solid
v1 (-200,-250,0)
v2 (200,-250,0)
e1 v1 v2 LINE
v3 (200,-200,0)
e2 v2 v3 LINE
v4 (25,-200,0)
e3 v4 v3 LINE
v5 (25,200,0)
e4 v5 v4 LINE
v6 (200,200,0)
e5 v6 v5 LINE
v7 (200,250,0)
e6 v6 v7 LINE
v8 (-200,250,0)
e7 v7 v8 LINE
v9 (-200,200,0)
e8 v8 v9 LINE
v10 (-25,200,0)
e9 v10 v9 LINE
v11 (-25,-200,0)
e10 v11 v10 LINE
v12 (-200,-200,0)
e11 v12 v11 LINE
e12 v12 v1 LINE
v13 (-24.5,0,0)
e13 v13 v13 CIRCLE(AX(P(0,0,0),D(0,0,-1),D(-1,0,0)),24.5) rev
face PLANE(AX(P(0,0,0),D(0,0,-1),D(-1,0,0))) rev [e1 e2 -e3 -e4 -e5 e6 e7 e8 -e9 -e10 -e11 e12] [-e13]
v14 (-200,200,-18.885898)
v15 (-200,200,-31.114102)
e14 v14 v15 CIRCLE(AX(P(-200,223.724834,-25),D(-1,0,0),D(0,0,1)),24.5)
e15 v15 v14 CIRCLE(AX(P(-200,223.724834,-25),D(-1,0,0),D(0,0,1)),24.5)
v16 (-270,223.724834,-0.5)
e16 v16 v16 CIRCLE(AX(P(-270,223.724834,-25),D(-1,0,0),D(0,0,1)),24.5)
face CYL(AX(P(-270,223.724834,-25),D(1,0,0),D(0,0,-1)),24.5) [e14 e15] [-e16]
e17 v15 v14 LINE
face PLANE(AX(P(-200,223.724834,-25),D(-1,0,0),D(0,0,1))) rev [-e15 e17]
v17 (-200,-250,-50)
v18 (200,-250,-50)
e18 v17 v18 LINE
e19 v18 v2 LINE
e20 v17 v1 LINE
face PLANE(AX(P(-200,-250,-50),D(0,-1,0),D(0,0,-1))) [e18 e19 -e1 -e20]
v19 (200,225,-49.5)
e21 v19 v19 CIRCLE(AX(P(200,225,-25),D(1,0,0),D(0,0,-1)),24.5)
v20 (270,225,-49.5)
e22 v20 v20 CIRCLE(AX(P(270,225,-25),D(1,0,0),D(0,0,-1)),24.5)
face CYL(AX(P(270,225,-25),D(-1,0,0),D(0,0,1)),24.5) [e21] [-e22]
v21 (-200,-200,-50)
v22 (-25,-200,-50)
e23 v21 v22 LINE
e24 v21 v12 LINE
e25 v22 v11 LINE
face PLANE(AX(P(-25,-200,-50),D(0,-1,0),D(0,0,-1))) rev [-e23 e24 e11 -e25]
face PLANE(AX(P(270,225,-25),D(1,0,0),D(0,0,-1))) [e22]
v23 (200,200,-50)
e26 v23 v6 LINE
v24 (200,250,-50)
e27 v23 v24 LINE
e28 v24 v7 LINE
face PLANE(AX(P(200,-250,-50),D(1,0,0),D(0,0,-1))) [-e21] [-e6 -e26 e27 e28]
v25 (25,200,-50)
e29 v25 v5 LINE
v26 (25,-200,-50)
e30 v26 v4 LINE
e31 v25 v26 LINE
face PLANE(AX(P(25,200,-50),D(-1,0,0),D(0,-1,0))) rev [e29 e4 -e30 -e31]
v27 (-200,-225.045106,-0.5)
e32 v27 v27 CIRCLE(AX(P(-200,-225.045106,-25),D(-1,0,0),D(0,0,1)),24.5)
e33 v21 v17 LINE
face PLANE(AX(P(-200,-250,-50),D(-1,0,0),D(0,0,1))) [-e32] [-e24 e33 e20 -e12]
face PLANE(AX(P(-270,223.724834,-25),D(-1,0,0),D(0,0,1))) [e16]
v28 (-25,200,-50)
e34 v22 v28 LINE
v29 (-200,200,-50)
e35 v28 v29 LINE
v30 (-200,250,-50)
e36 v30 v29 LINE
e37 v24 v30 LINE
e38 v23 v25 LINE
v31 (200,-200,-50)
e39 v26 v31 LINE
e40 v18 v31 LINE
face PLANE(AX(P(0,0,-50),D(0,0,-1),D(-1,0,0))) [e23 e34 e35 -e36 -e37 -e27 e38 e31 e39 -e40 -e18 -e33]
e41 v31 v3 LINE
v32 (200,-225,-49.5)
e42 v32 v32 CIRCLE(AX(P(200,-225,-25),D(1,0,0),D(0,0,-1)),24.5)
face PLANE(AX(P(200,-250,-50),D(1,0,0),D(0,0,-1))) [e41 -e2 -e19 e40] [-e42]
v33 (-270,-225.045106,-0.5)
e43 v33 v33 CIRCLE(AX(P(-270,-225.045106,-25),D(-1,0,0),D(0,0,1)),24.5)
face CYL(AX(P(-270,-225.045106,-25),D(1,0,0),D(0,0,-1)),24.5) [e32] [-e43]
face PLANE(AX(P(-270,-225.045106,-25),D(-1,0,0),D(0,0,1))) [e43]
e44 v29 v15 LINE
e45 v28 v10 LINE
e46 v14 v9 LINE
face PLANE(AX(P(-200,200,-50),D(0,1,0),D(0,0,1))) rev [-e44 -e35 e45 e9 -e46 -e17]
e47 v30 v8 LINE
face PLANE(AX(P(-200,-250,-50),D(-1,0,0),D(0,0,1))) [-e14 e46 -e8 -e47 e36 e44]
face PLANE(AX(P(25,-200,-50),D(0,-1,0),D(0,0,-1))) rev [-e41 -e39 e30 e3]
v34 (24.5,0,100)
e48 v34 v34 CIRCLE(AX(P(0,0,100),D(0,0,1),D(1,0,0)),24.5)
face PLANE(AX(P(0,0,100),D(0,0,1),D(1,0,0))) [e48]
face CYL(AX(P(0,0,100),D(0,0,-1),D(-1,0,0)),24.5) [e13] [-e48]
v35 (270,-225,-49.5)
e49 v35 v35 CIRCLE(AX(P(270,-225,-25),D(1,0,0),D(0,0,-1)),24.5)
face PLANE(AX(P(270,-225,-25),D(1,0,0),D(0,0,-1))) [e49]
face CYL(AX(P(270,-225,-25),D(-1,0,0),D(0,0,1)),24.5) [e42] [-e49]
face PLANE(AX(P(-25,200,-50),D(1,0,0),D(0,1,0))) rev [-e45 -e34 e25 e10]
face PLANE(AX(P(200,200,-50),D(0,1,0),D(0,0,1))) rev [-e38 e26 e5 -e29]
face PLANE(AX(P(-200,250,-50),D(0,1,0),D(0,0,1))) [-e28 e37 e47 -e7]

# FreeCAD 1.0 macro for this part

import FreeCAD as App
import Part
import Sketcher
from FreeCAD import Vector
Q = App.Units.Quantity


def add_polygon(sketch, points):
    """Adds a closed chain of lines whose ends are joined by coincident constraints."""
    first, n = sketch.GeometryCount, len(points)
    for a, b in zip(points, points[1:] + points[:1]):
        sketch.addGeometry(Part.LineSegment(App.Vector(*a, 0), App.Vector(*b, 0)), False)
    for i in range(n):
        sketch.addConstraint(Sketcher.Constraint("Coincident", first + i, 2, first + (i + 1) % n, 1))

doc = App.newDocument("Part")
body = doc.addObject("PartDesign::Body", "Body")

sketch1 = doc.addObject("Sketcher::SketchObject", "Sketch")
body.addObject(sketch1)
sketch1.AttachmentSupport = (doc.XY_Plane, [""])
sketch1.MapMode = "FlatFace"
add_polygon(sketch1, [(-200, 250), (-200, -250), (200, -250), (200, 250)])
sketch1.addConstraint([
    Sketcher.Constraint("Vertical", 0),
    Sketcher.Constraint("Horizontal", 1),
    Sketcher.Constraint("Vertical", 2),
    Sketcher.Constraint("Horizontal", 3),
    Sketcher.Constraint("Symmetric", 0, 2, 2, 2, -1, 1),
    Sketcher.Constraint("DistanceX", 1, 1, 1, 2, Q("400 mm")),
    Sketcher.Constraint("DistanceY", 0, 2, 0, 1, Q("500 mm")),
])
pad1 = doc.addObject("PartDesign::Pad", "Pad")
body.addObject(pad1)
pad1.Profile = sketch1
pad1.Length = 50
pad1.Reversed = True

sketch2 = doc.addObject("Sketcher::SketchObject", "Sketch001")
body.addObject(sketch2)
sketch2.AttachmentSupport = (doc.XY_Plane, [""])
sketch2.MapMode = "FlatFace"
add_polygon(sketch2, [(-200, 200), (-200, -200), (-25, -200), (-25, 200)])
add_polygon(sketch2, [(25, 200), (25, -200), (200, -200), (200, 200)])
sketch2.addConstraint([
    Sketcher.Constraint("Vertical", 0),
    Sketcher.Constraint("Horizontal", 1),
    Sketcher.Constraint("Vertical", 2),
    Sketcher.Constraint("Horizontal", 3),
    Sketcher.Constraint("Vertical", 4),
    Sketcher.Constraint("Horizontal", 5),
    Sketcher.Constraint("Vertical", 6),
    Sketcher.Constraint("Horizontal", 7),
    Sketcher.Constraint("Symmetric", 2, 2, 4, 2, -1, 1),
    Sketcher.Constraint("Symmetric", 0, 2, 6, 2, -1, 1),
    Sketcher.Constraint("Horizontal", 1, 2, 4, 2),
    Sketcher.Constraint("DistanceX", 1, 1, 1, 2, Q("175 mm")),
    Sketcher.Constraint("DistanceY", 0, 2, 0, 1, Q("400 mm")),
    Sketcher.Constraint("DistanceX", 0, 2, -1, 1, Q("200 mm")),
])
pocket1 = doc.addObject("PartDesign::Pocket", "Pocket")
body.addObject(pocket1)
pocket1.Profile = sketch2
pocket1.Length = 50

sketch3 = doc.addObject("Sketcher::SketchObject", "Sketch002")
body.addObject(sketch3)
sketch3.AttachmentSupport = (doc.YZ_Plane, [""])
sketch3.MapMode = "FlatFace"
sketch3.AttachmentOffset = App.Placement(Vector(0, 0, -200), App.Rotation())
sketch3.addGeometry(Part.Circle(Vector(-225, -25, 0), Vector(0, 0, 1), 24), False)
sketch3.addConstraint([
    Sketcher.Constraint("Diameter", 0, Q("49 mm")),
    Sketcher.Constraint("DistanceY", 0, 3, -1, 1, Q("25 mm")),
    Sketcher.Constraint("DistanceX", 0, 3, -1, 1, Q("225.045106 mm")),
])
pad2 = doc.addObject("PartDesign::Pad", "Pad001")
body.addObject(pad2)
pad2.Profile = sketch3
pad2.Length = 70
pad2.Reversed = True

sketch4 = doc.addObject("Sketcher::SketchObject", "Sketch003")
body.addObject(sketch4)
sketch4.AttachmentSupport = (doc.YZ_Plane, [""])
sketch4.MapMode = "FlatFace"
sketch4.AttachmentOffset = App.Placement(Vector(0, 0, -200), App.Rotation())
sketch4.addGeometry(Part.Circle(Vector(224, -25, 0), Vector(0, 0, 1), 24), False)
sketch4.addConstraint([
    Sketcher.Constraint("Diameter", 0, Q("49 mm")),
    Sketcher.Constraint("DistanceY", 0, 3, -1, 1, Q("25 mm")),
    Sketcher.Constraint("DistanceX", -1, 1, 0, 3, Q("223.724834 mm")),
])
pad3 = doc.addObject("PartDesign::Pad", "Pad002")
body.addObject(pad3)
pad3.Profile = sketch4
pad3.Length = 70
pad3.Reversed = True

sketch5 = doc.addObject("Sketcher::SketchObject", "Sketch004")
body.addObject(sketch5)
sketch5.AttachmentSupport = (doc.YZ_Plane, [""])
sketch5.MapMode = "FlatFace"
sketch5.AttachmentOffset = App.Placement(Vector(0, 0, 200), App.Rotation())
sketch5.addGeometry(Part.Circle(Vector(-225, -25, 0), Vector(0, 0, 1), 24), False)
sketch5.addConstraint([
    Sketcher.Constraint("Diameter", 0, Q("49 mm")),
    Sketcher.Constraint("DistanceX", 0, 3, -1, 1, Q("225 mm")),
    Sketcher.Constraint("DistanceY", 0, 3, -1, 1, Q("25 mm")),
])
pad4 = doc.addObject("PartDesign::Pad", "Pad003")
body.addObject(pad4)
pad4.Profile = sketch5
pad4.Length = 70

sketch6 = doc.addObject("Sketcher::SketchObject", "Sketch005")
body.addObject(sketch6)
sketch6.AttachmentSupport = (doc.YZ_Plane, [""])
sketch6.MapMode = "FlatFace"
sketch6.AttachmentOffset = App.Placement(Vector(0, 0, 200), App.Rotation())
sketch6.addGeometry(Part.Circle(Vector(225, -25, 0), Vector(0, 0, 1), 24), False)
sketch6.addConstraint([
    Sketcher.Constraint("Diameter", 0, Q("49 mm")),
    Sketcher.Constraint("DistanceX", -1, 1, 0, 3, Q("225 mm")),
    Sketcher.Constraint("DistanceY", 0, 3, -1, 1, Q("25 mm")),
])
pad5 = doc.addObject("PartDesign::Pad", "Pad004")
body.addObject(pad5)
pad5.Profile = sketch6
pad5.Length = 70

sketch7 = doc.addObject("Sketcher::SketchObject", "Sketch006")
body.addObject(sketch7)
sketch7.AttachmentSupport = (doc.XY_Plane, [""])
sketch7.MapMode = "FlatFace"
sketch7.addGeometry(Part.Circle(Vector(0, 0, 0), Vector(0, 0, 1), 24), False)
sketch7.addConstraint([
    Sketcher.Constraint("Coincident", 0, 3, -1, 1),
    Sketcher.Constraint("Diameter", 0, Q("49 mm")),
])
pad6 = doc.addObject("PartDesign::Pad", "Pad005")
body.addObject(pad6)
pad6.Profile = sketch7
pad6.Length = 100

doc.recompute()
